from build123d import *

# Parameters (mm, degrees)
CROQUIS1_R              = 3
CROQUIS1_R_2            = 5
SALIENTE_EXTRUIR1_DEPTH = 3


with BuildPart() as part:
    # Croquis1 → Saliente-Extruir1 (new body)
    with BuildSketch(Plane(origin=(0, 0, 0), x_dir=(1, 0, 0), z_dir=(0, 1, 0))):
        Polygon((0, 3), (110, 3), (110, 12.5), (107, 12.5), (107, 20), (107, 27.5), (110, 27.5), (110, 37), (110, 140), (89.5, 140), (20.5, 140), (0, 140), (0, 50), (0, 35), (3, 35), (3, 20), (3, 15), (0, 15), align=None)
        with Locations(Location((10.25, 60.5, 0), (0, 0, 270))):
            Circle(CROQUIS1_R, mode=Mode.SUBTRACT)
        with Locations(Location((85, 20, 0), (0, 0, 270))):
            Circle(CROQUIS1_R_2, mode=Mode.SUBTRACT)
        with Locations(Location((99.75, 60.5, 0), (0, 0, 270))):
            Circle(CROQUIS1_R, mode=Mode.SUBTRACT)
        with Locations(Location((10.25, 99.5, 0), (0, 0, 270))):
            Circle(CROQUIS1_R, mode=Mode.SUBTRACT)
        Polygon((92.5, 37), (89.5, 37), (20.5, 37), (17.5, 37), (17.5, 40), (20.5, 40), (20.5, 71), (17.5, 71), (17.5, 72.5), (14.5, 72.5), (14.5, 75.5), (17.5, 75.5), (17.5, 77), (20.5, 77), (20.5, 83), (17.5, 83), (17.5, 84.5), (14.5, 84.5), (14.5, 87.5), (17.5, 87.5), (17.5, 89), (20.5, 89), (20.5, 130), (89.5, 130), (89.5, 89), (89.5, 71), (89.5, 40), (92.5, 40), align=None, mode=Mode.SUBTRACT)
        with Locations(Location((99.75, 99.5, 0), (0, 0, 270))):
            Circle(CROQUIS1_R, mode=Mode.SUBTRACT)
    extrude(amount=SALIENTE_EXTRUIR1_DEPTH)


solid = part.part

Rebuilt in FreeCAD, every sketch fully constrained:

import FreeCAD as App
import Part
import Sketcher
Q = App.Units.Quantity


def add_polygon(sketch, points):
    """Adds a closed chain of lines whose ends are joined by coincident constraints."""
    first, n = sketch.GeometryCount, len(points)
    for a, b in zip(points, points[1:] + points[:1]):
        sketch.addGeometry(Part.LineSegment(App.Vector(*a, 0), App.Vector(*b, 0)), False)
    for i in range(n):
        sketch.addConstraint(Sketcher.Constraint("Coincident", first + i, 2, first + (i + 1) % n, 1))

doc = App.newDocument("Part")
body = doc.addObject("PartDesign::Body", "Body")

sketch1 = body.newObject("Sketcher::SketchObject", "Sketch")
sketch1.AttachmentSupport = (doc.getObject("XZ_Plane"), [""])
sketch1.MapMode = "FlatFace"
add_polygon(sketch1, [(0, -3), (110, -3), (110, -12.5), (107, -12.5), (107, -27.5), (110, -27.5), (110, -140), (0, -140), (0, -35), (3, -35), (3, -15), (0, -15)])
sketch1.addGeometry(Part.Circle(App.Vector(10.2, -60.5, 0), App.Vector(0, 0, 1), 3), False)
sketch1.addGeometry(Part.Circle(App.Vector(85, -20, 0), App.Vector(0, 0, 1), 5), False)
sketch1.addGeometry(Part.Circle(App.Vector(99.8, -60.5, 0), App.Vector(0, 0, 1), 3), False)
sketch1.addGeometry(Part.Circle(App.Vector(10.2, -99.5, 0), App.Vector(0, 0, 1), 3), False)
add_polygon(sketch1, [(92.5, -40), (92.5, -37), (17.5, -37), (17.5, -40), (20.5, -40), (20.5, -71), (17.5, -71), (17.5, -72.5), (14.5, -72.5), (14.5, -75.5), (17.5, -75.5), (17.5, -77), (20.5, -77), (20.5, -83), (17.5, -83), (17.5, -84.5), (14.5, -84.5), (14.5, -87.5), (17.5, -87.5), (17.5, -89), (20.5, -89), (20.5, -130), (89.5, -130), (89.5, -40)])
sketch1.addGeometry(Part.Circle(App.Vector(99.8, -99.5, 0), App.Vector(0, 0, 1), 3), False)
sketch1.addConstraint(Sketcher.Constraint("Horizontal", 0))
sketch1.addConstraint(Sketcher.Constraint("Vertical", 1))
sketch1.addConstraint(Sketcher.Constraint("Horizontal", 2))
sketch1.addConstraint(Sketcher.Constraint("Vertical", 3))
sketch1.addConstraint(Sketcher.Constraint("Horizontal", 4))
sketch1.addConstraint(Sketcher.Constraint("Vertical", 5))
sketch1.addConstraint(Sketcher.Constraint("Horizontal", 6))
sketch1.addConstraint(Sketcher.Constraint("Vertical", 7))
sketch1.addConstraint(Sketcher.Constraint("Horizontal", 8))
sketch1.addConstraint(Sketcher.Constraint("Vertical", 9))
sketch1.addConstraint(Sketcher.Constraint("Horizontal", 10))
sketch1.addConstraint(Sketcher.Constraint("Vertical", 11))
sketch1.addConstraint(Sketcher.Constraint("Vertical", 16))
sketch1.addConstraint(Sketcher.Constraint("Horizontal", 17))
sketch1.addConstraint(Sketcher.Constraint("Vertical", 18))
sketch1.addConstraint(Sketcher.Constraint("Horizontal", 19))
sketch1.addConstraint(Sketcher.Constraint("Vertical", 20))
sketch1.addConstraint(Sketcher.Constraint("Horizontal", 21))
sketch1.addConstraint(Sketcher.Constraint("Vertical", 22))
sketch1.addConstraint(Sketcher.Constraint("Horizontal", 23))
sketch1.addConstraint(Sketcher.Constraint("Vertical", 24))
sketch1.addConstraint(Sketcher.Constraint("Horizontal", 25))
sketch1.addConstraint(Sketcher.Constraint("Vertical", 26))
sketch1.addConstraint(Sketcher.Constraint("Horizontal", 27))
sketch1.addConstraint(Sketcher.Constraint("Vertical", 28))
sketch1.addConstraint(Sketcher.Constraint("Horizontal", 29))
sketch1.addConstraint(Sketcher.Constraint("Vertical", 30))
sketch1.addConstraint(Sketcher.Constraint("Horizontal", 31))
sketch1.addConstraint(Sketcher.Constraint("Vertical", 32))
sketch1.addConstraint(Sketcher.Constraint("Horizontal", 33))
sketch1.addConstraint(Sketcher.Constraint("Vertical", 34))
sketch1.addConstraint(Sketcher.Constraint("Horizontal", 35))
sketch1.addConstraint(Sketcher.Constraint("Vertical", 36))
sketch1.addConstraint(Sketcher.Constraint("Horizontal", 37))
sketch1.addConstraint(Sketcher.Constraint("Vertical", 38))
sketch1.addConstraint(Sketcher.Constraint("Horizontal", 39))
sketch1.addConstraint(Sketcher.Constraint("Equal", 12, 14))
sketch1.addConstraint(Sketcher.Constraint("Equal", 14, 15))
sketch1.addConstraint(Sketcher.Constraint("Equal", 15, 40))
sketch1.addConstraint(Sketcher.Constraint("PointOnObject", 6, 2, -2))
sketch1.addConstraint(Sketcher.Constraint("PointOnObject", 10, 2, -2))
sketch1.addConstraint(Sketcher.Constraint("Horizontal", 12, 3, 14, 3))
sketch1.addConstraint(Sketcher.Constraint("Horizontal", 15, 3, 40, 3))
sketch1.addConstraint(Sketcher.Constraint("Horizontal", 19, 2, 38, 2))
sketch1.addConstraint(Sketcher.Constraint("Vertical", 12, 3, 15, 3))
sketch1.addConstraint(Sketcher.Constraint("Vertical", 14, 3, 40, 3))
sketch1.addConstraint(Sketcher.Constraint("Vertical", 1, 2, 4, 2))
sketch1.addConstraint(Sketcher.Constraint("Vertical", 18, 2, 21, 2))
sketch1.addConstraint(Sketcher.Constraint("Vertical", 22, 2, 25, 2))
sketch1.addConstraint(Sketcher.Constraint("Vertical", 20, 2, 27, 2))
sketch1.addConstraint(Sketcher.Constraint("Vertical", 26, 2, 29, 2))
sketch1.addConstraint(Sketcher.Constraint("Vertical", 24, 2, 31, 2))
sketch1.addConstraint(Sketcher.Constraint("Vertical", 30, 2, 33, 2))
sketch1.addConstraint(Sketcher.Constraint("Vertical", 28, 2, 35, 2))
sketch1.addConstraint(Sketcher.Constraint("Equal", 4, 8))
sketch1.addConstraint(Sketcher.Constraint("Equal", 10, 19))
sketch1.addConstraint(Sketcher.Constraint("Equal", 21, 23))
sketch1.addConstraint(Sketcher.Constraint("Equal", 35, 39))
sketch1.addConstraint(Sketcher.Constraint("Equal", 39, 16))
sketch1.addConstraint(Sketcher.Constraint("Equal", 18, 24))
sketch1.addConstraint(Sketcher.Constraint("Equal", 22, 26))
sketch1.addConstraint(Sketcher.Constraint("Equal", 26, 30))
sketch1.addConstraint(Sketcher.Constraint("Equal", 24, 32))
sketch1.addConstraint(Sketcher.Constraint("Equal", 30, 34))
sketch1.addConstraint(Sketcher.Constraint("Diameter", 12, Q("6 mm")))
sketch1.addConstraint(Sketcher.Constraint("Diameter", 13, Q("10 mm")))
sketch1.addConstraint(Sketcher.Constraint("DistanceX", 0, 1, 0, 2, Q("110 mm")))
sketch1.addConstraint(Sketcher.Constraint("DistanceX", 2, 2, 2, 1, Q("3 mm")))
sketch1.addConstraint(Sketcher.Constraint("DistanceX", 17, 2, 17, 1, Q("75 mm")))
sketch1.addConstraint(Sketcher.Constraint("DistanceY", 3, 2, 3, 1, Q("15 mm")))
sketch1.addConstraint(Sketcher.Constraint("DistanceY", 7, 1, 7, 2, Q("105 mm")))
sketch1.addConstraint(Sketcher.Constraint("DistanceY", 9, 1, 9, 2, Q("20 mm")))
sketch1.addConstraint(Sketcher.Constraint("DistanceY", 11, 1, 11, 2, Q("12 mm")))
sketch1.addConstraint(Sketcher.Constraint("DistanceY", 20, 2, 20, 1, Q("31 mm")))
sketch1.addConstraint(Sketcher.Constraint("DistanceY", 28, 2, 28, 1, Q("6 mm")))
sketch1.addConstraint(Sketcher.Constraint("DistanceY", 36, 2, 36, 1, Q("41 mm")))
sketch1.addConstraint(Sketcher.Constraint("DistanceY", 38, 1, 38, 2, Q("90 mm")))
sketch1.addConstraint(Sketcher.Constraint("DistanceY", 1, 2, 1, 1, Q("9.5 mm")))
sketch1.addConstraint(Sketcher.Constraint("DistanceX", -1, 1, 13, 3, Q("85 mm")))
sketch1.addConstraint(Sketcher.Constraint("DistanceY", 13, 3, -1, 1, Q("20 mm")))
sketch1.addConstraint(Sketcher.Constraint("DistanceY", 0, 2, -1, 1, Q("3 mm")))
sketch1.addConstraint(Sketcher.Constraint("DistanceY", 16, 2, -1, 1, Q("37 mm")))
sketch1.addConstraint(Sketcher.Constraint("DistanceY", 15, 3, 12, 3, Q("39 mm")))
sketch1.addConstraint(Sketcher.Constraint("DistanceY", 14, 3, 1, 2, Q("48 mm")))
sketch1.addConstraint(Sketcher.Constraint("DistanceX", -1, 1, 16, 2, Q("92.5 mm")))
sketch1.addConstraint(Sketcher.Constraint("DistanceX", 12, 3, 14, 3, Q("89.5 mm")))
sketch1.addConstraint(Sketcher.Constraint("DistanceX", -1, 1, 12, 3, Q("10.25 mm")))
pad1 = body.newObject("PartDesign::Pad", "Pad")
pad1.Profile = sketch1
pad1.Length = 3
pad1.Reversed = True

doc.recompute()
